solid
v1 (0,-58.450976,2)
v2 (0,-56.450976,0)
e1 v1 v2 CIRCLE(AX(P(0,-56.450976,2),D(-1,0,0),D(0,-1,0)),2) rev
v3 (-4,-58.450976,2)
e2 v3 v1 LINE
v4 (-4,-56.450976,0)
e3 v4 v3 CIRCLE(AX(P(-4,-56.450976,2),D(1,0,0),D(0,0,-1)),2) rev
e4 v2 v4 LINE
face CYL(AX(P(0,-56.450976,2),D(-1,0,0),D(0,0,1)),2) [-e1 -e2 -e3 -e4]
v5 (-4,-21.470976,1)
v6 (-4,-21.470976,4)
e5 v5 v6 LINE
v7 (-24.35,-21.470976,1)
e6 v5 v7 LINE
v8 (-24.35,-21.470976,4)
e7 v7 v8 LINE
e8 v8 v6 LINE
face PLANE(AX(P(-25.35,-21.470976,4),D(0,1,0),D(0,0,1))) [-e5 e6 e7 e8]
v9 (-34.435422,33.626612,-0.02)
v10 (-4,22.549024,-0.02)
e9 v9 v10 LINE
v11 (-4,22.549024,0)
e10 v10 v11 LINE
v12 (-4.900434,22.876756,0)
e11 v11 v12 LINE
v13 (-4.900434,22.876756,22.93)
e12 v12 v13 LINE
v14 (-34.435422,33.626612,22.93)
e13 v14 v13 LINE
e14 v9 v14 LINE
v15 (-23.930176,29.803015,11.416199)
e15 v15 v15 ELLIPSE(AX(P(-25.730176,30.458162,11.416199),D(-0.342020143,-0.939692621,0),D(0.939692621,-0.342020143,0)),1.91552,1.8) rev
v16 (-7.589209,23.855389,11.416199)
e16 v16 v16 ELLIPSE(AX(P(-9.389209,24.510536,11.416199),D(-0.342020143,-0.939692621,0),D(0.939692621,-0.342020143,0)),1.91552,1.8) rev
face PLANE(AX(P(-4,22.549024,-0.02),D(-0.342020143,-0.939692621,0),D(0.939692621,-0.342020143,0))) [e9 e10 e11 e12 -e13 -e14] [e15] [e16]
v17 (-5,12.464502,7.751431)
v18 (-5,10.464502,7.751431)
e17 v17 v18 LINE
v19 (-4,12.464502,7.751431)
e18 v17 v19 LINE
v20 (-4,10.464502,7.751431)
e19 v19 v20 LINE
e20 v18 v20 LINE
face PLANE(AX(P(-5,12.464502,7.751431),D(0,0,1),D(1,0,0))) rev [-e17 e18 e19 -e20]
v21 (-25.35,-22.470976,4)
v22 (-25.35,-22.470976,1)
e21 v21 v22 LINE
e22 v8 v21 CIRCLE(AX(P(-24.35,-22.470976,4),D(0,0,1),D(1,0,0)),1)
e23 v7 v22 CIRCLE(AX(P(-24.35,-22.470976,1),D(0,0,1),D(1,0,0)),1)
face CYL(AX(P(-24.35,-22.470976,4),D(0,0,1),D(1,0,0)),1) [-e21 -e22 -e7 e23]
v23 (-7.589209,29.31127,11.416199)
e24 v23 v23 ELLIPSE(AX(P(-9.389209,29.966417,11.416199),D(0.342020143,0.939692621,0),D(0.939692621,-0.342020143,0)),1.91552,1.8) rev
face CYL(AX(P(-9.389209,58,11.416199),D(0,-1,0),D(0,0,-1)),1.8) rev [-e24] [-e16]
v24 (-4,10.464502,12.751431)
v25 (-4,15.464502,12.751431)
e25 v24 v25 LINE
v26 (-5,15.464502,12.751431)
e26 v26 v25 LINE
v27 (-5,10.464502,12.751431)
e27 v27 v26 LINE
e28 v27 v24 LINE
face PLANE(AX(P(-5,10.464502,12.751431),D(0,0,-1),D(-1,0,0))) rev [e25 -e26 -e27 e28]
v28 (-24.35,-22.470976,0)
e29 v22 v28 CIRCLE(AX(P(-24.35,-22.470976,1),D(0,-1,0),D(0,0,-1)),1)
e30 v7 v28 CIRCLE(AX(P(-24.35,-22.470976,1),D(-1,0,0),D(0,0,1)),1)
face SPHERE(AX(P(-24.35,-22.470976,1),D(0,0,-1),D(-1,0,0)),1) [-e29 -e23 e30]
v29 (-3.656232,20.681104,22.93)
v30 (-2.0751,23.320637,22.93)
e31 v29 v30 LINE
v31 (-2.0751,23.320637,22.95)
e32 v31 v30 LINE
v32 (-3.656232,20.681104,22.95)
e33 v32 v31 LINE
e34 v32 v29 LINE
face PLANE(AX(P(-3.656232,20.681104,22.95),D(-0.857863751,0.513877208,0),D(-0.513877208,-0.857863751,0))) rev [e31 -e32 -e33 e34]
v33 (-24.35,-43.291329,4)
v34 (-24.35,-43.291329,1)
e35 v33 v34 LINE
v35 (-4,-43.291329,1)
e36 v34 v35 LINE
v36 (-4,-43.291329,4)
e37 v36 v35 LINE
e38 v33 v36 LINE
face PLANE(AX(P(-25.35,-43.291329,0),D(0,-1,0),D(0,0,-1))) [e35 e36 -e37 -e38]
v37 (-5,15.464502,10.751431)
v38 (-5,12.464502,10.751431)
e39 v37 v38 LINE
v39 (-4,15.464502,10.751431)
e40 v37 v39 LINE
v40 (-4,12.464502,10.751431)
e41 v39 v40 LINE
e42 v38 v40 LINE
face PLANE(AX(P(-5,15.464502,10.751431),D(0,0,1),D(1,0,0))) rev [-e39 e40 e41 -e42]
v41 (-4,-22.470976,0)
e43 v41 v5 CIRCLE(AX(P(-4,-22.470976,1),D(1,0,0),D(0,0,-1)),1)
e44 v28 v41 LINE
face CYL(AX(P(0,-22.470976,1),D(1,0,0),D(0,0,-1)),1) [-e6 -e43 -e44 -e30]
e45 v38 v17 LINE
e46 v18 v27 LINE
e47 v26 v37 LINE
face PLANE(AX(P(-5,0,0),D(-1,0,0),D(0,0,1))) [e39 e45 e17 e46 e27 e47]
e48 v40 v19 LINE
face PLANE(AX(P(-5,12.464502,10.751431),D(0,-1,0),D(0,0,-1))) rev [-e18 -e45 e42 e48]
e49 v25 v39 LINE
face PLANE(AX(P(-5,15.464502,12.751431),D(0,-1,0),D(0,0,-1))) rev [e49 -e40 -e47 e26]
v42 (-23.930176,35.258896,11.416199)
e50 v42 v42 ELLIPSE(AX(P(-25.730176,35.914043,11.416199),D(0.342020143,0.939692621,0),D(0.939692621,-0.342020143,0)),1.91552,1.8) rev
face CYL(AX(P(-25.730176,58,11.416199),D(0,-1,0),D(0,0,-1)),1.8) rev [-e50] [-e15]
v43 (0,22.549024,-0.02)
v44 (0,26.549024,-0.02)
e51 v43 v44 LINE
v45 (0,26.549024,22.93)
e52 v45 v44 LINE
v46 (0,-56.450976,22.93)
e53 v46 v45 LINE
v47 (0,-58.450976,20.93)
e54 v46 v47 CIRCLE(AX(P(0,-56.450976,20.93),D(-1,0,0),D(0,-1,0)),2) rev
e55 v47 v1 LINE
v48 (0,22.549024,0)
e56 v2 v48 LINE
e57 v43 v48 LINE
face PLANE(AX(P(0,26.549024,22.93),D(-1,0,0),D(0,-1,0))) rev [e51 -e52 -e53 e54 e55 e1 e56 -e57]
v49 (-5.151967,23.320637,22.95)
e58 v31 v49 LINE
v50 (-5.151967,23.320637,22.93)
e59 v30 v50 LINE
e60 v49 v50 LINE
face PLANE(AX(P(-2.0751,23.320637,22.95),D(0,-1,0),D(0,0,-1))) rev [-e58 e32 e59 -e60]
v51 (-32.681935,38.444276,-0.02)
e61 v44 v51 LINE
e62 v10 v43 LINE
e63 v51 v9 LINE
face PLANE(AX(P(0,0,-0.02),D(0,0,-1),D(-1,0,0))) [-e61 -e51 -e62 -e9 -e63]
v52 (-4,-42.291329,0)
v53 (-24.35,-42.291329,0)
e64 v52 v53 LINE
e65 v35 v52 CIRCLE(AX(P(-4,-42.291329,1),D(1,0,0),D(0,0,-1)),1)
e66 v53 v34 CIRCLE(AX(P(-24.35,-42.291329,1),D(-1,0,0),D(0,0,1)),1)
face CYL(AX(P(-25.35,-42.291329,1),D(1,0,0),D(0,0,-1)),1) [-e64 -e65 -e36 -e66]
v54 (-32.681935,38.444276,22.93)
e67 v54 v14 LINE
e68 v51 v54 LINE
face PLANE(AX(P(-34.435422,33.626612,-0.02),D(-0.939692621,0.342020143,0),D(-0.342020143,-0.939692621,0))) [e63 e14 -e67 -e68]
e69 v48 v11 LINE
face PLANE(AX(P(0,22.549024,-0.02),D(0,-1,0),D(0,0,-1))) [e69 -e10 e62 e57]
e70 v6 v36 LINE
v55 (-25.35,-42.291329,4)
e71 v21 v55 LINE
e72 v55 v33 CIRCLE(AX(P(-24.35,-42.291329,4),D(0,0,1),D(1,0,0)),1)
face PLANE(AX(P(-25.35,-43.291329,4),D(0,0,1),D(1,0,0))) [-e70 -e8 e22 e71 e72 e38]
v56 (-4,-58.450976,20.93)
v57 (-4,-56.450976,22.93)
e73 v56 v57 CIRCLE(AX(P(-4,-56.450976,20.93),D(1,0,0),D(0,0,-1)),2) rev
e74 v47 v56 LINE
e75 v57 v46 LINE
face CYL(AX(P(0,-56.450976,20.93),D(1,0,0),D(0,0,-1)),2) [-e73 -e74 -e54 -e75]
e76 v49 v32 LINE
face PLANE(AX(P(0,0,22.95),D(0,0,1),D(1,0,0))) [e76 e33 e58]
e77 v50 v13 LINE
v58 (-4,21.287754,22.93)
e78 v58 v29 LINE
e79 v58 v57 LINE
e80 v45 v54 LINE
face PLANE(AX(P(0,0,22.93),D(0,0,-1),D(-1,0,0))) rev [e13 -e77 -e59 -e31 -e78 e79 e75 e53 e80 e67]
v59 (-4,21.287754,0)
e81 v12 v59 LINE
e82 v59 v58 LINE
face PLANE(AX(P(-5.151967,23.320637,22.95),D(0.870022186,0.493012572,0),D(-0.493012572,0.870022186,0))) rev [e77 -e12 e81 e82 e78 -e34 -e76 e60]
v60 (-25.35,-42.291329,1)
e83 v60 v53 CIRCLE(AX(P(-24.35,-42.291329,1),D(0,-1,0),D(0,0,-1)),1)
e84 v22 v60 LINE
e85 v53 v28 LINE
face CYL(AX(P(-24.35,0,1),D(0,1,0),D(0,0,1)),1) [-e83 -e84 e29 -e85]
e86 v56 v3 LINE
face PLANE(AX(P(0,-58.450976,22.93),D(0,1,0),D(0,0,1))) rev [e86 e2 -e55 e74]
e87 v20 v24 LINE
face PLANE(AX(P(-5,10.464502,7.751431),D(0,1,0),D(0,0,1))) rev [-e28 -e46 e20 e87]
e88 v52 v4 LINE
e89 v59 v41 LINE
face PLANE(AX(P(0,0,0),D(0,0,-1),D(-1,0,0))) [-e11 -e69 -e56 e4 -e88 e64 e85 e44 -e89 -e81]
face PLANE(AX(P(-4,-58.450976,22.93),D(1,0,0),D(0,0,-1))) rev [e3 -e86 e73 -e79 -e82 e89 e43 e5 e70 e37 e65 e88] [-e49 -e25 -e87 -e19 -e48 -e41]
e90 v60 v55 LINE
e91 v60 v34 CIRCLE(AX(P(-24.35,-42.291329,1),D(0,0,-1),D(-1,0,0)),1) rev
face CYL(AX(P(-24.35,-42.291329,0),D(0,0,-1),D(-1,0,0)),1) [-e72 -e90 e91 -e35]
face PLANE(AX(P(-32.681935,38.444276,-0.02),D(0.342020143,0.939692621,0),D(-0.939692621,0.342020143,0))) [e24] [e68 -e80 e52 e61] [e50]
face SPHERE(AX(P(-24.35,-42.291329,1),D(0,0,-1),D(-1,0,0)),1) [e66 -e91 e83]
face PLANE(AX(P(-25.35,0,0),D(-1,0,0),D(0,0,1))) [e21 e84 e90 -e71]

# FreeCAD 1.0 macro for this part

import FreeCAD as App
import Part
import Sketcher
from FreeCAD import Vector
Q = App.Units.Quantity


def edges_at(feature, points):
    """Names of the edges that pass closest to the given points."""
    edges = feature.Shape.Edges
    near = lambda p: min(range(len(edges)), key=lambda i: edges[i].distToShape(Part.Vertex(*p))[0])
    return sorted({f"Edge{near(p) + 1}" for p in points})

doc = App.newDocument("Part")
params = doc.addObject("Spreadsheet::Sheet", "Params")
for row, (alias, value) in enumerate([
    ("sketch1_width", "4 mm"),
    ("sketch1_height", "85 mm"),
    ("pad1_length", "22.93 mm"),
    ("sketch2_width", "4 mm"),
    ("pad2_length", "22.95 mm"),
    ("fillet_radius", "2 mm"),
    ("sketch3_height", "4 mm"),
    ("pad3_length", "25.35 mm"),
    ("fillet2_radius", "1 mm"),
    ("fillet3_radius", "1 mm"),
    ("sketch4_diameter", "3.6 mm"),
    ("pocket1_length", "58 mm"),
    ("sketch5_width", "5 mm"),
    ("sketch5_width2", "3 mm"),
    ("pad4_length", "1 mm"),
    ("pad5_length", "22.95 mm"),
], start=1):
    params.set(f"A{row}", alias)
    params.set(f"B{row}", "=" + value)
    params.setAlias(f"B{row}", alias)

body = doc.addObject("PartDesign::Body", "Body")

# Sketch on XY plane
sketch1 = body.newObject("Sketcher::SketchObject", "Sketch")
sketch1.AttachmentSupport = (doc.getObject("XY_Plane"), [""])
sketch1.MapMode = "FlatFace"
sketch1.addGeometry([
    Part.LineSegment(Vector(-4, 26.549024, 0), Vector(-4, -58.450976, 0)),
    Part.LineSegment(Vector(-4, -58.450976, 0), Vector(0, -58.450976, 0)),
    Part.LineSegment(Vector(0, -58.450976, 0), Vector(0, 26.549024, 0)),
    Part.LineSegment(Vector(0, 26.549024, 0), Vector(-4, 26.549024, 0)),
], False)
sketch1.addConstraint([
    Sketcher.Constraint("Coincident", 0, 2, 1, 1),
    Sketcher.Constraint("Coincident", 1, 2, 2, 1),
    Sketcher.Constraint("Coincident", 2, 2, 3, 1),
    Sketcher.Constraint("Coincident", 3, 2, 0, 1),
    Sketcher.Constraint("Vertical", 0),
    Sketcher.Constraint("Horizontal", 1),
    Sketcher.Constraint("Vertical", 2),
    Sketcher.Constraint("Horizontal", 3),
    Sketcher.Constraint("PointOnObject", 1, 2, -2),
    Sketcher.Constraint("DistanceX", 1, 1, 1, 2, Q("4 mm")),
    Sketcher.Constraint("DistanceY", 0, 2, 0, 1, Q("85 mm")),
    Sketcher.Constraint("DistanceY", 0, 2, -1, 1, Q("58.450976 mm")),
])
sketch1.setExpression("Constraints[9]", "Params.sketch1_width")
sketch1.setExpression("Constraints[10]", "Params.sketch1_height")
pad1 = body.newObject("PartDesign::Pad", "Pad")
pad1.Profile = sketch1
pad1.setExpression("Length", "Params.pad1_length")

# Sketch on XY plane
sketch2 = body.newObject("Sketcher::SketchObject", "Sketch001")
sketch2.AttachmentSupport = (doc.getObject("XY_Plane"), [""])
sketch2.MapMode = "FlatFace"
sketch2.AttachmentOffset = App.Placement(Vector(0, 0, 22.93), App.Rotation())
sketch2.addGeometry([
    Part.LineSegment(Vector(0, 26.549024, 0), Vector(-32.681935, 38.444276, 0)),  # 0
    Part.LineSegment(Vector(-32.681935, 38.444276, 0), Vector(-34.435422, 33.626612, 0)),  # 1
    Part.LineSegment(Vector(-34.435422, 33.626612, 0), Vector(-4, 22.549024, 0)),  # 2
    Part.LineSegment(Vector(-4, 22.549024, 0), Vector(0, 22.549024, 0)),  # 3
    Part.LineSegment(Vector(0, 22.549024, 0), Vector(0, 26.549024, 0)),  # 4
], False)
sketch2.addConstraint([
    Sketcher.Constraint("Coincident", 0, 2, 1, 1),
    Sketcher.Constraint("Coincident", 1, 2, 2, 1),
    Sketcher.Constraint("Coincident", 2, 2, 3, 1),
    Sketcher.Constraint("Coincident", 3, 2, 4, 1),
    Sketcher.Constraint("Coincident", 4, 2, 0, 1),
    Sketcher.Constraint("Horizontal", 3),
    Sketcher.Constraint("Vertical", 4),
    Sketcher.Constraint("PointOnObject", 3, 2, -2),
    Sketcher.Constraint("Perpendicular", 0, 1),
    Sketcher.Constraint("Perpendicular", 1, 2),
    Sketcher.Constraint("Equal", 3, 4),
    Sketcher.Constraint("DistanceX", 3, 1, 3, 2, Q("4 mm")),
    Sketcher.Constraint("Angle", 0, Q("160 deg")),
    Sketcher.Constraint("Distance", 2, Q("32.388699 mm")),
    Sketcher.Constraint("DistanceY", -1, 1, 1, 2, Q("33.626612 mm")),
])
sketch2.setExpression("Constraints[11]", "Params.sketch2_width")
pad2 = body.newObject("PartDesign::Pad", "Pad001")
pad2.Profile = sketch2
pad2.setExpression("Length", "Params.pad2_length")
pad2.Reversed = True
doc.recompute()

fillet = body.newObject("PartDesign::Fillet", "Fillet")
fillet.Base = (pad2, edges_at(pad2, [(-2, -58.451, 22.93), (-2, -58.451, 0)]))
fillet.setExpression("Radius", "Params.fillet_radius")

# Sketch on YZ plane
sketch3 = body.newObject("Sketcher::SketchObject", "Sketch002")
sketch3.AttachmentSupport = (doc.getObject("YZ_Plane"), [""])
sketch3.MapMode = "FlatFace"
sketch3.addGeometry([
    Part.LineSegment(Vector(-21.470976, 4, 0), Vector(-43.291329, 4, 0)),
    Part.LineSegment(Vector(-43.291329, 4, 0), Vector(-43.291329, 0, 0)),
    Part.LineSegment(Vector(-43.291329, 0, 0), Vector(-21.470976, 0, 0)),
    Part.LineSegment(Vector(-21.470976, 0, 0), Vector(-21.470976, 4, 0)),
], False)
sketch3.addConstraint([
    Sketcher.Constraint("Coincident", 0, 2, 1, 1),
    Sketcher.Constraint("Coincident", 1, 2, 2, 1),
    Sketcher.Constraint("Coincident", 2, 2, 3, 1),
    Sketcher.Constraint("Coincident", 3, 2, 0, 1),
    Sketcher.Constraint("Horizontal", 0),
    Sketcher.Constraint("Vertical", 1),
    Sketcher.Constraint("Horizontal", 2),
    Sketcher.Constraint("Vertical", 3),
    Sketcher.Constraint("PointOnObject", 1, 2, -1),
    Sketcher.Constraint("DistanceY", 1, 2, 1, 1, Q("4 mm")),
    Sketcher.Constraint("DistanceX", 0, 2, 0, 1, Q("21.820353 mm")),
    Sketcher.Constraint("DistanceX", 0, 2, -1, 1, Q("43.291329 mm")),
])
sketch3.setExpression("Constraints[9]", "Params.sketch3_height")
pad3 = body.newObject("PartDesign::Pad", "Pad002")
pad3.Profile = sketch3
pad3.setExpression("Length", "Params.pad3_length")
pad3.Reversed = True
doc.recompute()

fillet2 = body.newObject("PartDesign::Fillet", "Fillet001")
fillet2.Base = (pad3, edges_at(pad3, [(-25.35, -43.291, 2), (-25.35, -21.471, 2)]))
fillet2.setExpression("Radius", "Params.fillet2_radius")
doc.recompute()

fillet3 = body.newObject("PartDesign::Fillet", "Fillet002")
fillet3.Base = (fillet2, edges_at(fillet2, [
    (-14.175, -43.291, 0),
    (-25.35, -32.381, 0),
    (-14.175, -21.471, 0),
    (-25.057, -21.764, 0),
    (-25.057, -42.998, 0),
]))
fillet3.setExpression("Radius", "Params.fillet3_radius")

# Sketch on XZ plane
sketch4 = body.newObject("Sketcher::SketchObject", "Sketch003")
sketch4.AttachmentSupport = (doc.getObject("XZ_Plane"), [""])
sketch4.MapMode = "FlatFace"
sketch4.addGeometry([
    Part.Circle(Vector(-25.730176, 11.416199, 0), Vector(0, 0, 1), 1.8),
    Part.Circle(Vector(-9.389209, 11.416199, 0), Vector(0, 0, 1), 1.8),
], False)
sketch4.addConstraint([
    Sketcher.Constraint("Equal", 0, 1),
    Sketcher.Constraint("Horizontal", 0, 3, 1, 3),
    Sketcher.Constraint("Diameter", 0, Q("3.6 mm")),
    Sketcher.Constraint("DistanceY", -1, 1, 0, 3, Q("11.416199 mm")),
    Sketcher.Constraint("DistanceX", 1, 3, -1, 1, Q("9.389209 mm")),
    Sketcher.Constraint("DistanceX", 0, 3, -1, 1, Q("25.730176 mm")),
])
sketch4.setExpression("Constraints[2]", "Params.sketch4_diameter")
pocket1 = body.newObject("PartDesign::Pocket", "Pocket")
pocket1.Profile = sketch4
pocket1.setExpression("Length", "Params.pocket1_length")

# Sketch on YZ plane
sketch5 = body.newObject("Sketcher::SketchObject", "Sketch004")
sketch5.AttachmentSupport = (doc.getObject("YZ_Plane"), [""])
sketch5.MapMode = "FlatFace"
sketch5.AttachmentOffset = App.Placement(Vector(0, 0, -4), App.Rotation())
sketch5.addGeometry([
    Part.LineSegment(Vector(10.464502, 7.751431, 0), Vector(10.464502, 12.751431, 0)),  # 0
    Part.LineSegment(Vector(10.464502, 12.751431, 0), Vector(15.464502, 12.751431, 0)),  # 1
    Part.LineSegment(Vector(15.464502, 12.751431, 0), Vector(15.464502, 10.751431, 0)),  # 2
    Part.LineSegment(Vector(15.464502, 10.751431, 0), Vector(12.464502, 10.751431, 0)),  # 3
    Part.LineSegment(Vector(12.464502, 10.751431, 0), Vector(12.464502, 7.751431, 0)),  # 4
    Part.LineSegment(Vector(12.464502, 7.751431, 0), Vector(10.464502, 7.751431, 0)),  # 5
], False)
sketch5.addConstraint([
    Sketcher.Constraint("Coincident", 0, 2, 1, 1),
    Sketcher.Constraint("Coincident", 1, 2, 2, 1),
    Sketcher.Constraint("Coincident", 2, 2, 3, 1),
    Sketcher.Constraint("Coincident", 3, 2, 4, 1),
    Sketcher.Constraint("Coincident", 4, 2, 5, 1),
    Sketcher.Constraint("Coincident", 5, 2, 0, 1),
    Sketcher.Constraint("Vertical", 0),
    Sketcher.Constraint("Horizontal", 1),
    Sketcher.Constraint("Vertical", 2),
    Sketcher.Constraint("Horizontal", 3),
    Sketcher.Constraint("Vertical", 4),
    Sketcher.Constraint("Horizontal", 5),
    Sketcher.Constraint("Equal", 1, 0),
    Sketcher.Constraint("Equal", 5, 2),
    Sketcher.Constraint("DistanceX", 1, 1, 1, 2, Q("5 mm")),
    Sketcher.Constraint("DistanceX", 3, 2, 3, 1, Q("3 mm")),
    Sketcher.Constraint("DistanceX", -1, 1, 0, 2, Q("10.464502 mm")),
    Sketcher.Constraint("DistanceY", -1, 1, 0, 2, Q("12.751431 mm")),
])
sketch5.setExpression("Constraints[14]", "Params.sketch5_width")
sketch5.setExpression("Constraints[15]", "Params.sketch5_width2")
pad4 = body.newObject("PartDesign::Pad", "Pad003")
pad4.Profile = sketch5
pad4.setExpression("Length", "Params.pad4_length")
pad4.Reversed = True

# Sketch on XY plane
sketch6 = body.newObject("Sketcher::SketchObject", "Sketch005")
sketch6.AttachmentSupport = (doc.getObject("XY_Plane"), [""])
sketch6.MapMode = "FlatFace"
sketch6.addGeometry([
    Part.LineSegment(Vector(-5.151967, 23.320637, 0), Vector(-3.656232, 20.681104, 0)),
    Part.LineSegment(Vector(-3.656232, 20.681104, 0), Vector(-2.0751, 23.320637, 0)),
    Part.LineSegment(Vector(-2.0751, 23.320637, 0), Vector(-5.151967, 23.320637, 0)),
], False)
sketch6.addConstraint([
    Sketcher.Constraint("Coincident", 0, 2, 1, 1),
    Sketcher.Constraint("Coincident", 1, 2, 2, 1),
    Sketcher.Constraint("Coincident", 2, 2, 0, 1),
    Sketcher.Constraint("Horizontal", 2),
    Sketcher.Constraint("DistanceX", 1, 2, -1, 1, Q("2.0751 mm")),
    Sketcher.Constraint("DistanceX", 2, 2, 2, 1, Q("3.076867 mm")),
    Sketcher.Constraint("DistanceX", 0, 2, -1, 1, Q("3.656232 mm")),
    Sketcher.Constraint("Distance", 0, Q("3.033868 mm")),
    Sketcher.Constraint("DistanceY", -1, 1, 0, 2, Q("20.681104 mm")),
])
pad5 = body.newObject("PartDesign::Pad", "Pad004")
pad5.Profile = sketch6
pad5.setExpression("Length", "Params.pad5_length")

doc.recompute()
